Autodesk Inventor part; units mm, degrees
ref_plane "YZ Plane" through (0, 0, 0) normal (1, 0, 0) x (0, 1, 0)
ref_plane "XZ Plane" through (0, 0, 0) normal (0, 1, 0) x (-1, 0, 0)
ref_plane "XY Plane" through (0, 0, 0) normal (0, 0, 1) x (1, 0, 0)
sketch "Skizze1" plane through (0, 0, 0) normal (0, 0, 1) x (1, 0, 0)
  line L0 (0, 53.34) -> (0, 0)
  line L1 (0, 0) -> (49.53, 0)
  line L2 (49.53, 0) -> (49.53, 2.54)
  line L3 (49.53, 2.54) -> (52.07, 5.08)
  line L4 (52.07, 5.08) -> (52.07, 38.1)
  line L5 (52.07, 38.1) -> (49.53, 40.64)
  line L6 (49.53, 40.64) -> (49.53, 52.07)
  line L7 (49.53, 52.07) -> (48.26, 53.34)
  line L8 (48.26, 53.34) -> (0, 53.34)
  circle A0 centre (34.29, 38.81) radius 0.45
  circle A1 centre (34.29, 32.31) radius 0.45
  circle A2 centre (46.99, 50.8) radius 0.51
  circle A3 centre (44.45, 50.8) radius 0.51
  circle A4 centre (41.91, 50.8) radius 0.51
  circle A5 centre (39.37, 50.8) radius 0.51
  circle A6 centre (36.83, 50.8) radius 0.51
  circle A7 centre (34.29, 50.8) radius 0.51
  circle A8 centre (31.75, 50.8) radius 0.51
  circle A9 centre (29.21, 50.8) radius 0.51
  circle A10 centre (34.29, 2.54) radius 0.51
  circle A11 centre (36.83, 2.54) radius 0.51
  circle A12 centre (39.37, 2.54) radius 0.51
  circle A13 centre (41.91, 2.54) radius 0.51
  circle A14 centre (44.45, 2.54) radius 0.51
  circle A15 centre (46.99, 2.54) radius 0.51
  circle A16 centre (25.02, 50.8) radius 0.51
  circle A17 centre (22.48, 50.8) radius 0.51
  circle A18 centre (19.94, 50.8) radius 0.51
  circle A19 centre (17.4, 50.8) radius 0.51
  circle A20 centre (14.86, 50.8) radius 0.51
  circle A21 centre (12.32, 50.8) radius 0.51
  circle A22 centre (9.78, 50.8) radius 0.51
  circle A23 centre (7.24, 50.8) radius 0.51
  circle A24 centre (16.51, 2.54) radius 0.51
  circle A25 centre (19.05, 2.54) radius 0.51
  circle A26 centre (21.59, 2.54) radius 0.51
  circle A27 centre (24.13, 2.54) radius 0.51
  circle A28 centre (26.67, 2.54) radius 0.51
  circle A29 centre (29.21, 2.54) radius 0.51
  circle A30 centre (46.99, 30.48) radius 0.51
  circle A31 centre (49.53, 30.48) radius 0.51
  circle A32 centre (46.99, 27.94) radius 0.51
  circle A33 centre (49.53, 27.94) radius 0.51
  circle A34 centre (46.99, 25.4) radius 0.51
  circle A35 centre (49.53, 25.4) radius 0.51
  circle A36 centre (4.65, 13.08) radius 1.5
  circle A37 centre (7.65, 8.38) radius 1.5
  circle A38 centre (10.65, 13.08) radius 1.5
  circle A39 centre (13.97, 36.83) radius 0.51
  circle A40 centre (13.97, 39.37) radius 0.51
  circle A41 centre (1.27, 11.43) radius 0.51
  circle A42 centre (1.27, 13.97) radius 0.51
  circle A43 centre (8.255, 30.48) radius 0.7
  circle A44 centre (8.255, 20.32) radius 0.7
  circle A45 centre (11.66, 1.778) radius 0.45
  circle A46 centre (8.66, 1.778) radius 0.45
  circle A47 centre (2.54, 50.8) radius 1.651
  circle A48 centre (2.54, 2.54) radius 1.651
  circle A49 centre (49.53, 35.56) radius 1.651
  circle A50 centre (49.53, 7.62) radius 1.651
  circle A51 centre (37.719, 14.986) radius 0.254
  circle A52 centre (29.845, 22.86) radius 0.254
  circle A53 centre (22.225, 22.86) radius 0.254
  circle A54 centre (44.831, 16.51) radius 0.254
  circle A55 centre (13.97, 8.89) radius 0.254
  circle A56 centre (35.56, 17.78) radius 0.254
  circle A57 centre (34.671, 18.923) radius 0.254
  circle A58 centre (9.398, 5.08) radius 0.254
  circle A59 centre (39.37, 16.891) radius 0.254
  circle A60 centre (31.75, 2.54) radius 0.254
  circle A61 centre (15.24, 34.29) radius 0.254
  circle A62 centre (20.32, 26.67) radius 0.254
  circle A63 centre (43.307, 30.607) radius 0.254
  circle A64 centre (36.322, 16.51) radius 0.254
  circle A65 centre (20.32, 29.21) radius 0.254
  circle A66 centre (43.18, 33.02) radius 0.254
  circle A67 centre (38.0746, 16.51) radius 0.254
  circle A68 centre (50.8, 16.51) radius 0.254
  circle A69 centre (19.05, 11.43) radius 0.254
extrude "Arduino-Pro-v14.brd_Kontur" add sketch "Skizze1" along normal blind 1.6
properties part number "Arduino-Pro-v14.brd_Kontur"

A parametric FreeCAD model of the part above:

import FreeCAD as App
import Part
import Sketcher
Q = App.Units.Quantity


def add_polygon(sketch, points):
    """Adds a closed chain of lines whose ends are joined by coincident constraints."""
    first, n = sketch.GeometryCount, len(points)
    for a, b in zip(points, points[1:] + points[:1]):
        sketch.addGeometry(Part.LineSegment(App.Vector(*a, 0), App.Vector(*b, 0)), False)
    for i in range(n):
        sketch.addConstraint(Sketcher.Constraint("Coincident", first + i, 2, first + (i + 1) % n, 1))

doc = App.newDocument("Part")
body = doc.addObject("PartDesign::Body", "Body")

sketch1 = body.newObject("Sketcher::SketchObject", "Sketch")
sketch1.AttachmentSupport = (doc.getObject("XY_Plane"), [""])
sketch1.MapMode = "FlatFace"
add_polygon(sketch1, [(48.26, 53.34), (0, 53.34), (0, 0), (49.53, 0), (49.53, 2.54), (52.07, 5.08), (52.07, 38.1), (49.53, 40.64), (49.53, 52.07)])
sketch1.addGeometry(Part.Circle(App.Vector(2.54, 2.54, 0), App.Vector(0, 0, 1), 1.65), False)
sketch1.addGeometry(Part.Circle(App.Vector(8.66, 1.78, 0), App.Vector(0, 0, 1), 0.45), False)
sketch1.addGeometry(Part.Circle(App.Vector(11.66, 1.78, 0), App.Vector(0, 0, 1), 0.45), False)
sketch1.addGeometry(Part.Circle(App.Vector(9.4, 5.08, 0), App.Vector(0, 0, 1), 0.25), False)
sketch1.addGeometry(Part.Circle(App.Vector(1.27, 11.43, 0), App.Vector(0, 0, 1), 0.51), False)
sketch1.addGeometry(Part.Circle(App.Vector(4.65, 13.08, 0), App.Vector(0, 0, 1), 1.5), False)
sketch1.addGeometry(Part.Circle(App.Vector(7.65, 8.38, 0), App.Vector(0, 0, 1), 1.5), False)
sketch1.addGeometry(Part.Circle(App.Vector(10.65, 13.08, 0), App.Vector(0, 0, 1), 1.5), False)
sketch1.addGeometry(Part.Circle(App.Vector(16.51, 2.54, 0), App.Vector(0, 0, 1), 0.51), False)
sketch1.addGeometry(Part.Circle(App.Vector(19.05, 2.54, 0), App.Vector(0, 0, 1), 0.51), False)
sketch1.addGeometry(Part.Circle(App.Vector(21.59, 2.54, 0), App.Vector(0, 0, 1), 0.51), False)
sketch1.addGeometry(Part.Circle(App.Vector(24.13, 2.54, 0), App.Vector(0, 0, 1), 0.51), False)
sketch1.addGeometry(Part.Circle(App.Vector(13.97, 8.89, 0), App.Vector(0, 0, 1), 0.25), False)
sketch1.addGeometry(Part.Circle(App.Vector(19.05, 11.43, 0), App.Vector(0, 0, 1), 0.25), False)
sketch1.addGeometry(Part.Circle(App.Vector(1.27, 13.97, 0), App.Vector(0, 0, 1), 0.51), False)
sketch1.addGeometry(Part.Circle(App.Vector(8.26, 20.32, 0), App.Vector(0, 0, 1), 0.7), False)
sketch1.addGeometry(Part.Circle(App.Vector(22.23, 22.86, 0), App.Vector(0, 0, 1), 0.25), False)
sketch1.addGeometry(Part.Circle(App.Vector(20.32, 26.67, 0), App.Vector(0, 0, 1), 0.25), False)
sketch1.addGeometry(Part.Circle(App.Vector(26.67, 2.54, 0), App.Vector(0, 0, 1), 0.51), False)
sketch1.addGeometry(Part.Circle(App.Vector(29.21, 2.54, 0), App.Vector(0, 0, 1), 0.51), False)
sketch1.addGeometry(Part.Circle(App.Vector(31.75, 2.54, 0), App.Vector(0, 0, 1), 0.25), False)
sketch1.addGeometry(Part.Circle(App.Vector(34.29, 2.54, 0), App.Vector(0, 0, 1), 0.51), False)
sketch1.addGeometry(Part.Circle(App.Vector(36.83, 2.54, 0), App.Vector(0, 0, 1), 0.51), False)
sketch1.addGeometry(Part.Circle(App.Vector(39.37, 2.54, 0), App.Vector(0, 0, 1), 0.51), False)
sketch1.addGeometry(Part.Circle(App.Vector(41.91, 2.54, 0), App.Vector(0, 0, 1), 0.51), False)
sketch1.addGeometry(Part.Circle(App.Vector(44.45, 2.54, 0), App.Vector(0, 0, 1), 0.51), False)
sketch1.addGeometry(Part.Circle(App.Vector(46.99, 2.54, 0), App.Vector(0, 0, 1), 0.51), False)
sketch1.addGeometry(Part.Circle(App.Vector(49.53, 7.62, 0), App.Vector(0, 0, 1), 1.65), False)
sketch1.addGeometry(Part.Circle(App.Vector(37.72, 14.99, 0), App.Vector(0, 0, 1), 0.25), False)
sketch1.addGeometry(Part.Circle(App.Vector(36.32, 16.51, 0), App.Vector(0, 0, 1), 0.25), False)
sketch1.addGeometry(Part.Circle(App.Vector(38.07, 16.51, 0), App.Vector(0, 0, 1), 0.25), False)
sketch1.addGeometry(Part.Circle(App.Vector(35.56, 17.78, 0), App.Vector(0, 0, 1), 0.25), False)
sketch1.addGeometry(Part.Circle(App.Vector(34.67, 18.92, 0), App.Vector(0, 0, 1), 0.25), False)
sketch1.addGeometry(Part.Circle(App.Vector(29.84, 22.86, 0), App.Vector(0, 0, 1), 0.25), False)
sketch1.addGeometry(Part.Circle(App.Vector(44.83, 16.51, 0), App.Vector(0, 0, 1), 0.25), False)
sketch1.addGeometry(Part.Circle(App.Vector(39.37, 16.89, 0), App.Vector(0, 0, 1), 0.25), False)
sketch1.addGeometry(Part.Circle(App.Vector(50.8, 16.51, 0), App.Vector(0, 0, 1), 0.25), False)
sketch1.addGeometry(Part.Circle(App.Vector(46.99, 25.4, 0), App.Vector(0, 0, 1), 0.51), False)
sketch1.addGeometry(Part.Circle(App.Vector(49.53, 25.4, 0), App.Vector(0, 0, 1), 0.51), False)
sketch1.addGeometry(Part.Circle(App.Vector(8.26, 30.48, 0), App.Vector(0, 0, 1), 0.7), False)
sketch1.addGeometry(Part.Circle(App.Vector(20.32, 29.21, 0), App.Vector(0, 0, 1), 0.25), False)
sketch1.addGeometry(Part.Circle(App.Vector(15.24, 34.29, 0), App.Vector(0, 0, 1), 0.25), False)
sketch1.addGeometry(Part.Circle(App.Vector(13.97, 36.83, 0), App.Vector(0, 0, 1), 0.51), False)
sketch1.addGeometry(Part.Circle(App.Vector(13.97, 39.37, 0), App.Vector(0, 0, 1), 0.51), False)
sketch1.addGeometry(Part.Circle(App.Vector(2.54, 50.8, 0), App.Vector(0, 0, 1), 1.65), False)
sketch1.addGeometry(Part.Circle(App.Vector(7.24, 50.8, 0), App.Vector(0, 0, 1), 0.51), False)
sketch1.addGeometry(Part.Circle(App.Vector(9.78, 50.8, 0), App.Vector(0, 0, 1), 0.51), False)
sketch1.addGeometry(Part.Circle(App.Vector(12.32, 50.8, 0), App.Vector(0, 0, 1), 0.51), False)
sketch1.addGeometry(Part.Circle(App.Vector(14.86, 50.8, 0), App.Vector(0, 0, 1), 0.51), False)
sketch1.addGeometry(Part.Circle(App.Vector(17.4, 50.8, 0), App.Vector(0, 0, 1), 0.51), False)
sketch1.addGeometry(Part.Circle(App.Vector(19.94, 50.8, 0), App.Vector(0, 0, 1), 0.51), False)
sketch1.addGeometry(Part.Circle(App.Vector(22.48, 50.8, 0), App.Vector(0, 0, 1), 0.51), False)
sketch1.addGeometry(Part.Circle(App.Vector(25.02, 50.8, 0), App.Vector(0, 0, 1), 0.51), False)
sketch1.addGeometry(Part.Circle(App.Vector(34.29, 32.31, 0), App.Vector(0, 0, 1), 0.45), False)
sketch1.addGeometry(Part.Circle(App.Vector(34.29, 38.81, 0), App.Vector(0, 0, 1), 0.45), False)
sketch1.addGeometry(Part.Circle(App.Vector(43.31, 30.61, 0), App.Vector(0, 0, 1), 0.25), False)
sketch1.addGeometry(Part.Circle(App.Vector(43.18, 33.02, 0), App.Vector(0, 0, 1), 0.25), False)
sketch1.addGeometry(Part.Circle(App.Vector(46.99, 27.94, 0), App.Vector(0, 0, 1), 0.51), False)
sketch1.addGeometry(Part.Circle(App.Vector(49.53, 27.94, 0), App.Vector(0, 0, 1), 0.51), False)
sketch1.addGeometry(Part.Circle(App.Vector(46.99, 30.48, 0), App.Vector(0, 0, 1), 0.51), False)
sketch1.addGeometry(Part.Circle(App.Vector(49.53, 30.48, 0), App.Vector(0, 0, 1), 0.51), False)
sketch1.addGeometry(Part.Circle(App.Vector(49.53, 35.56, 0), App.Vector(0, 0, 1), 1.65), False)
sketch1.addGeometry(Part.Circle(App.Vector(29.21, 50.8, 0), App.Vector(0, 0, 1), 0.51), False)
sketch1.addGeometry(Part.Circle(App.Vector(31.75, 50.8, 0), App.Vector(0, 0, 1), 0.51), False)
sketch1.addGeometry(Part.Circle(App.Vector(34.29, 50.8, 0), App.Vector(0, 0, 1), 0.51), False)
sketch1.addGeometry(Part.Circle(App.Vector(36.83, 50.8, 0), App.Vector(0, 0, 1), 0.51), False)
sketch1.addGeometry(Part.Circle(App.Vector(39.37, 50.8, 0), App.Vector(0, 0, 1), 0.51), False)
sketch1.addGeometry(Part.Circle(App.Vector(41.91, 50.8, 0), App.Vector(0, 0, 1), 0.51), False)
sketch1.addGeometry(Part.Circle(App.Vector(44.45, 50.8, 0), App.Vector(0, 0, 1), 0.51), False)
sketch1.addGeometry(Part.Circle(App.Vector(46.99, 50.8, 0), App.Vector(0, 0, 1), 0.51), False)
sketch1.addConstraint([
    Sketcher.Constraint("Horizontal", 0),
    Sketcher.Constraint("Vertical", 1),
    Sketcher.Constraint("Horizontal", 2),
    Sketcher.Constraint("Vertical", 3),
    Sketcher.Constraint("Vertical", 5),
    Sketcher.Constraint("Vertical", 7),
    Sketcher.Constraint("Coincident", 1, 2, -1, 1),
    Sketcher.Constraint("Equal", 10, 11),
    Sketcher.Constraint("Equal", 14, 15),
    Sketcher.Constraint("Equal", 15, 16),
    Sketcher.Constraint("Equal", 13, 17),
    Sketcher.Constraint("Equal", 17, 18),
    Sketcher.Constraint("Equal", 18, 19),
    Sketcher.Constraint("Equal", 19, 20),
    Sketcher.Constraint("Equal", 12, 21),
    Sketcher.Constraint("Equal", 21, 22),
    Sketcher.Constraint("Equal", 20, 23),
    Sketcher.Constraint("Equal", 22, 25),
    Sketcher.Constraint("Equal", 25, 26),
    Sketcher.Constraint("Equal", 23, 27),
    Sketcher.Constraint("Equal", 27, 28),
    Sketcher.Constraint("Equal", 26, 29),
    Sketcher.Constraint("Equal", 28, 30),
    Sketcher.Constraint("Equal", 30, 31),
    Sketcher.Constraint("Equal", 31, 32),
    Sketcher.Constraint("Equal", 32, 33),
    Sketcher.Constraint("Equal", 33, 34),
    Sketcher.Constraint("Equal", 34, 35),
    Sketcher.Constraint("Equal", 9, 36),
    Sketcher.Constraint("Equal", 29, 37),
    Sketcher.Constraint("Equal", 37, 38),
    Sketcher.Constraint("Equal", 38, 39),
    Sketcher.Constraint("Equal", 39, 40),
    Sketcher.Constraint("Equal", 40, 41),
    Sketcher.Constraint("Equal", 41, 42),
    Sketcher.Constraint("Equal", 42, 43),
    Sketcher.Constraint("Equal", 43, 44),
    Sketcher.Constraint("Equal", 44, 45),
    Sketcher.Constraint("Equal", 35, 46),
    Sketcher.Constraint("Equal", 46, 47),
    Sketcher.Constraint("Equal", 24, 48),
    Sketcher.Constraint("Equal", 45, 49),
    Sketcher.Constraint("Equal", 49, 50),
    Sketcher.Constraint("Equal", 47, 51),
    Sketcher.Constraint("Equal", 51, 52),
    Sketcher.Constraint("Equal", 36, 53),
    Sketcher.Constraint("Equal", 52, 54),
    Sketcher.Constraint("Equal", 54, 55),
    Sketcher.Constraint("Equal", 55, 56),
    Sketcher.Constraint("Equal", 56, 57),
    Sketcher.Constraint("Equal", 57, 58),
    Sketcher.Constraint("Equal", 58, 59),
    Sketcher.Constraint("Equal", 59, 60),
    Sketcher.Constraint("Equal", 60, 61),
    Sketcher.Constraint("Equal", 11, 62),
    Sketcher.Constraint("Equal", 62, 63),
    Sketcher.Constraint("Equal", 50, 64),
    Sketcher.Constraint("Equal", 64, 65),
    Sketcher.Constraint("Equal", 61, 66),
    Sketcher.Constraint("Equal", 66, 67),
    Sketcher.Constraint("Equal", 67, 68),
    Sketcher.Constraint("Equal", 68, 69),
    Sketcher.Constraint("Equal", 53, 70),
    Sketcher.Constraint("Equal", 69, 71),
    Sketcher.Constraint("Equal", 71, 72),
    Sketcher.Constraint("Equal", 72, 73),
    Sketcher.Constraint("Equal", 73, 74),
    Sketcher.Constraint("Equal", 74, 75),
    Sketcher.Constraint("Equal", 75, 76),
    Sketcher.Constraint("Equal", 76, 77),
    Sketcher.Constraint("Equal", 77, 78),
    Sketcher.Constraint("Perpendicular", 4, 6),
    Sketcher.Constraint("Parallel", 6, 8),
    Sketcher.Constraint("Horizontal", 10, 3, 11, 3),
    Sketcher.Constraint("Horizontal", 14, 3, 16, 3),
    Sketcher.Constraint("Horizontal", 9, 3, 17, 3),
    Sketcher.Constraint("Horizontal", 17, 3, 18, 3),
    Sketcher.Constraint("Horizontal", 18, 3, 19, 3),
    Sketcher.Constraint("Horizontal", 19, 3, 20, 3),
    Sketcher.Constraint("Horizontal", 13, 3, 22, 3),
    Sketcher.Constraint("Horizontal", 20, 3, 27, 3),
    Sketcher.Constraint("Horizontal", 27, 3, 28, 3),
    Sketcher.Constraint("Horizontal", 28, 3, 29, 3),
    Sketcher.Constraint("Horizontal", 29, 3, 30, 3),
    Sketcher.Constraint("Horizontal", 30, 3, 31, 3),
    Sketcher.Constraint("Horizontal", 31, 3, 32, 3),
    Sketcher.Constraint("Horizontal", 32, 3, 33, 3),
    Sketcher.Constraint("Horizontal", 33, 3, 34, 3),
    Sketcher.Constraint("Horizontal", 34, 3, 35, 3),
    Sketcher.Constraint("Horizontal", 38, 3, 39, 3),
    Sketcher.Constraint("Horizontal", 25, 3, 42, 3),
    Sketcher.Constraint("Horizontal", 39, 3, 43, 3),
    Sketcher.Constraint("Horizontal", 43, 3, 45, 3),
    Sketcher.Constraint("Horizontal", 46, 3, 47, 3),
    Sketcher.Constraint("Horizontal", 53, 3, 54, 3),
    Sketcher.Constraint("Horizontal", 54, 3, 55, 3),
    Sketcher.Constraint("Horizontal", 55, 3, 56, 3),
    Sketcher.Constraint("Horizontal", 56, 3, 57, 3),
    Sketcher.Constraint("Horizontal", 57, 3, 58, 3),
    Sketcher.Constraint("Horizontal", 58, 3, 59, 3),
    Sketcher.Constraint("Horizontal", 59, 3, 60, 3),
    Sketcher.Constraint("Horizontal", 60, 3, 61, 3),
    Sketcher.Constraint("Horizontal", 66, 3, 67, 3),
    Sketcher.Constraint("Horizontal", 48, 3, 68, 3),
    Sketcher.Constraint("Horizontal", 68, 3, 69, 3),
    Sketcher.Constraint("Horizontal", 61, 3, 71, 3),
    Sketcher.Constraint("Horizontal", 71, 3, 72, 3),
    Sketcher.Constraint("Horizontal", 72, 3, 73, 3),
    Sketcher.Constraint("Horizontal", 73, 3, 74, 3),
    Sketcher.Constraint("Horizontal", 74, 3, 75, 3),
    Sketcher.Constraint("Horizontal", 75, 3, 76, 3),
    Sketcher.Constraint("Horizontal", 76, 3, 77, 3),
    Sketcher.Constraint("Horizontal", 77, 3, 78, 3),
    Sketcher.Constraint("Horizontal", 35, 3, 3, 2),
    Sketcher.Constraint("Horizontal", 12, 3, 4, 2),
    Sketcher.Constraint("Vertical", 18, 3, 22, 3),
    Sketcher.Constraint("Vertical", 13, 3, 23, 3),
    Sketcher.Constraint("Vertical", 32, 3, 44, 3),
    Sketcher.Constraint("Vertical", 35, 3, 46, 3),
    Sketcher.Constraint("Vertical", 36, 3, 47, 3),
    Sketcher.Constraint("Vertical", 24, 3, 48, 3),
    Sketcher.Constraint("Vertical", 26, 3, 49, 3),
    Sketcher.Constraint("Vertical", 21, 3, 51, 3),
    Sketcher.Constraint("Vertical", 51, 3, 52, 3),
    Sketcher.Constraint("Vertical", 9, 3, 53, 3),
    Sketcher.Constraint("Vertical", 30, 3, 62, 3),
    Sketcher.Constraint("Vertical", 62, 3, 63, 3),
    Sketcher.Constraint("Vertical", 46, 3, 66, 3),
    Sketcher.Constraint("Vertical", 47, 3, 67, 3),
    Sketcher.Constraint("Vertical", 66, 3, 68, 3),
    Sketcher.Constraint("Vertical", 67, 3, 69, 3),
    Sketcher.Constraint("Vertical", 69, 3, 70, 3),
    Sketcher.Constraint("Vertical", 28, 3, 71, 3),
    Sketcher.Constraint("Vertical", 29, 3, 72, 3),
    Sketcher.Constraint("Vertical", 63, 3, 73, 3),
    Sketcher.Constraint("Vertical", 31, 3, 74, 3),
    Sketcher.Constraint("Vertical", 44, 3, 75, 3),
    Sketcher.Constraint("Vertical", 33, 3, 76, 3),
    Sketcher.Constraint("Vertical", 34, 3, 77, 3),
    Sketcher.Constraint("Vertical", 68, 3, 78, 3),
    Sketcher.Constraint("Vertical", 70, 3, 2, 2),
    Sketcher.Constraint("Vertical", 3, 2, 6, 2),
    Sketcher.Constraint("Equal", 4, 6),
    Sketcher.Constraint("Diameter", 9, Q("0.13 in")),
    Sketcher.Constraint("Diameter", 12, Q("0.02 in")),
    Sketcher.Constraint("DistanceX", 0, 2, 0, 1, Q("1.9 in")),
    Sketcher.Constraint("DistanceY", 1, 2, 1, 1, Q("2.1 in")),
    Sketcher.Constraint("DistanceY", 3, 1, 3, 2, Q("0.1 in")),
    Sketcher.Constraint("DistanceY", 5, 1, 5, 2, Q("1.3 in")),
    Sketcher.Constraint("DistanceX", -1, 1, 45, 3, Q("2 in")),
    Sketcher.Constraint("DistanceY", -1, 1, 46, 3, Q("1 in")),
    Sketcher.Constraint("DistanceY", -1, 1, 53, 3, Q("2 in")),
    Sketcher.Constraint("Diameter", 14, Q("0.1181 in")),
    Sketcher.Constraint("DistanceX", 2, 1, 2, 2, Q("1.95 in")),
    Sketcher.Constraint("DistanceY", 7, 1, 7, 2, Q("0.45 in")),
    Sketcher.Constraint("DistanceX", -1, 1, 9, 3, Q("0.1 in")),
    Sketcher.Constraint("DistanceY", -1, 1, 24, 3, Q("0.8 in")),
    Sketcher.Constraint("DistanceY", -1, 1, 25, 3, Q("0.9 in")),
    Sketcher.Constraint("DistanceX", -1, 1, 26, 3, Q("0.8 in")),
    Sketcher.Constraint("DistanceY", -1, 1, 36, 3, Q("0.3 in")),
    Sketcher.Constraint("DistanceX", -1, 1, 40, 3, Q("1.4 in")),
    Sketcher.Constraint("DistanceY", -1, 1, 40, 3, Q("0.7 in")),
    Sketcher.Constraint("DistanceY", -1, 1, 48, 3, Q("1.2 in")),
    Sketcher.Constraint("DistanceX", -1, 1, 50, 3, Q("0.6 in")),
    Sketcher.Constraint("DistanceX", -1, 1, 65, 3, Q("1.7 in")),
    Sketcher.Constraint("DistanceY", -1, 1, 65, 3, Q("1.3 in")),
    Sketcher.Constraint("DistanceY", -1, 1, 66, 3, Q("1.1 in")),
    Sketcher.Constraint("DistanceY", -1, 1, 70, 3, Q("1.4 in")),
    Sketcher.Constraint("Diameter", 10, Q("0.9 mm")),
    Sketcher.Constraint("Diameter", 13, Q("1.02 mm")),
    Sketcher.Constraint("Diameter", 24, Q("1.4 mm")),
    Sketcher.Constraint("DistanceY", -1, 1, 10, 3, Q("0.07 in")),
    Sketcher.Constraint("DistanceX", -1, 1, 12, 3, Q("0.37 in")),
    Sketcher.Constraint("DistanceX", -1, 1, 13, 3, Q("0.05 in")),
    Sketcher.Constraint("DistanceY", -1, 1, 13, 3, Q("0.45 in")),
    Sketcher.Constraint("DistanceX", -1, 1, 17, 3, Q("0.65 in")),
    Sketcher.Constraint("DistanceX", -1, 1, 18, 3, Q("0.75 in")),
    Sketcher.Constraint("DistanceX", -1, 1, 19, 3, Q("0.85 in")),
    Sketcher.Constraint("DistanceX", -1, 1, 20, 3, Q("0.95 in")),
    Sketcher.Constraint("DistanceX", -1, 1, 21, 3, Q("0.55 in")),
    Sketcher.Constraint("DistanceY", -1, 1, 21, 3, Q("0.35 in")),
    Sketcher.Constraint("DistanceY", -1, 1, 23, 3, Q("0.55 in")),
    Sketcher.Constraint("DistanceY", -1, 1, 26, 3, Q("1.05 in")),
    Sketcher.Constraint("DistanceX", -1, 1, 27, 3, Q("1.05 in")),
    Sketcher.Constraint("DistanceX", -1, 1, 28, 3, Q("1.15 in")),
    Sketcher.Constraint("DistanceX", -1, 1, 29, 3, Q("1.25 in")),
    Sketcher.Constraint("DistanceX", -1, 1, 30, 3, Q("1.35 in")),
    Sketcher.Constraint("DistanceX", -1, 1, 31, 3, Q("1.45 in")),
    Sketcher.Constraint("DistanceX", -1, 1, 32, 3, Q("1.55 in")),
    Sketcher.Constraint("DistanceX", -1, 1, 33, 3, Q("1.65 in")),
    Sketcher.Constraint("DistanceX", -1, 1, 34, 3, Q("1.75 in")),
    Sketcher.Constraint("DistanceX", -1, 1, 35, 3, Q("1.85 in")),
    Sketcher.Constraint("DistanceY", -1, 1, 37, 3, Q("0.59 in")),
    Sketcher.Constraint("DistanceX", -1, 1, 38, 3, Q("1.43 in")),
    Sketcher.Constraint("DistanceY", -1, 1, 38, 3, Q("0.65 in")),
    Sketcher.Constraint("DistanceY", -1, 1, 49, 3, Q("1.15 in")),
    Sketcher.Constraint("DistanceY", -1, 1, 50, 3, Q("1.35 in")),
    Sketcher.Constraint("DistanceY", -1, 1, 51, 3, Q("1.45 in")),
    Sketcher.Constraint("DistanceY", -1, 1, 52, 3, Q("1.55 in")),
    Sketcher.Constraint("DistanceX", -1, 1, 24, 3, Q("0.325 in")),
    Sketcher.Constraint("DistanceX", -1, 1, 25, 3, Q("0.875 in")),
    Sketcher.Constraint("DistanceX", -1, 1, 37, 3, Q("1.485 in")),
    Sketcher.Constraint("DistanceX", -1, 1, 39, 3, Q("1.499 in")),
    Sketcher.Constraint("DistanceX", -1, 1, 41, 3, Q("1.365 in")),
    Sketcher.Constraint("DistanceY", -1, 1, 41, 3, Q("0.745 in")),
    Sketcher.Constraint("DistanceX", -1, 1, 42, 3, Q("1.175 in")),
    Sketcher.Constraint("DistanceX", -1, 1, 43, 3, Q("1.765 in")),
    Sketcher.Constraint("DistanceY", -1, 1, 44, 3, Q("0.665 in")),
    Sketcher.Constraint("DistanceX", -1, 1, 64, 3, Q("1.705 in")),
    Sketcher.Constraint("DistanceY", -1, 1, 64, 3, Q("1.205 in")),
    Sketcher.Constraint("DistanceX", -1, 1, 16, 3, Q("0.4193 in")),
    Sketcher.Constraint("DistanceX", -1, 1, 10, 3, Q("8.66 mm")),
    Sketcher.Constraint("DistanceX", -1, 1, 11, 3, Q("11.66 mm")),
    Sketcher.Constraint("DistanceX", -1, 1, 14, 3, Q("4.65 mm")),
    Sketcher.Constraint("DistanceY", -1, 1, 14, 3, Q("13.08 mm")),
    Sketcher.Constraint("DistanceX", -1, 1, 15, 3, Q("7.65 mm")),
    Sketcher.Constraint("DistanceY", -1, 1, 15, 3, Q("8.38 mm")),
    Sketcher.Constraint("DistanceX", -1, 1, 54, 3, Q("7.24 mm")),
    Sketcher.Constraint("DistanceX", -1, 1, 55, 3, Q("9.78 mm")),
    Sketcher.Constraint("DistanceX", -1, 1, 56, 3, Q("12.32 mm")),
    Sketcher.Constraint("DistanceX", -1, 1, 57, 3, Q("14.86 mm")),
    Sketcher.Constraint("DistanceX", -1, 1, 58, 3, Q("17.4 mm")),
    Sketcher.Constraint("DistanceX", -1, 1, 59, 3, Q("19.94 mm")),
    Sketcher.Constraint("DistanceX", -1, 1, 60, 3, Q("22.48 mm")),
    Sketcher.Constraint("DistanceX", -1, 1, 61, 3, Q("25.02 mm")),
    Sketcher.Constraint("DistanceY", -1, 1, 62, 3, Q("32.31 mm")),
    Sketcher.Constraint("DistanceY", -1, 1, 63, 3, Q("38.81 mm")),
])
pad1 = body.newObject("PartDesign::Pad", "Pad")
pad1.Profile = sketch1
pad1.Length = Q("0.0629921 in")

doc.recompute()
